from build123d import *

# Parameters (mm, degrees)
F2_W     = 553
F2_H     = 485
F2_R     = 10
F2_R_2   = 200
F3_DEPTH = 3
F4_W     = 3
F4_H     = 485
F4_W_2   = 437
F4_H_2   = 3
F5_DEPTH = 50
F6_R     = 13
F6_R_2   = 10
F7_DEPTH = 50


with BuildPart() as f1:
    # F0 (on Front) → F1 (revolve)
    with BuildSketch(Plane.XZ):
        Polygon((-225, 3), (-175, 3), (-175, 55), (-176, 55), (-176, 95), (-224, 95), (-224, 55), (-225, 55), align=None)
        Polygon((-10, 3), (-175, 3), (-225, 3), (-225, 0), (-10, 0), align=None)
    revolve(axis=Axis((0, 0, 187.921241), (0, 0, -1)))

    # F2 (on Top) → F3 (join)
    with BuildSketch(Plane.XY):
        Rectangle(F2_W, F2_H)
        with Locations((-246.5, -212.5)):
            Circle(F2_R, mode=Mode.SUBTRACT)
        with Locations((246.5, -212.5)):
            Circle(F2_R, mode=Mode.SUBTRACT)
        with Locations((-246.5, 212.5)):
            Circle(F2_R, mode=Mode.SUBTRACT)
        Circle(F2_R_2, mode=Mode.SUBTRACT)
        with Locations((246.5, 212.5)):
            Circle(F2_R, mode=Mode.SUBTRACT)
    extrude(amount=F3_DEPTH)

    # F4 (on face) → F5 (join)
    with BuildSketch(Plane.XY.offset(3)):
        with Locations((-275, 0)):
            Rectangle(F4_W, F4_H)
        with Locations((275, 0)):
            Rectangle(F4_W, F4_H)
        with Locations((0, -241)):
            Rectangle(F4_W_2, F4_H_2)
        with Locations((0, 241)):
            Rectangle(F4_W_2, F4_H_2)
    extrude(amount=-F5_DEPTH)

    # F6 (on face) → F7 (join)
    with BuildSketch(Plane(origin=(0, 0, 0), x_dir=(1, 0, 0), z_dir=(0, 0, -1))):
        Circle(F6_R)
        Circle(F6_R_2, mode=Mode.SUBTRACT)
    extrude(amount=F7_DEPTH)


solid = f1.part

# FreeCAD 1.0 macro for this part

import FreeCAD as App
import Part
import Sketcher
from FreeCAD import Vector
Q = App.Units.Quantity

doc = App.newDocument("Part")
body = doc.addObject("PartDesign::Body", "Body")

# Sketch on XZ plane
sketch1 = body.newObject("Sketcher::SketchObject", "Sketch")
sketch1.AttachmentSupport = (doc.getObject("XZ_Plane"), [""])
sketch1.MapMode = "FlatFace"
sketch1.addGeometry([
    Part.LineSegment(Vector(-175, 3, 0), Vector(-175, 55, 0)),  # 0
    Part.LineSegment(Vector(-175, 55, 0), Vector(-176, 55, 0)),  # 1
    Part.LineSegment(Vector(-176, 55, 0), Vector(-176, 95, 0)),  # 2
    Part.LineSegment(Vector(-176, 95, 0), Vector(-224, 95, 0)),  # 3
    Part.LineSegment(Vector(-224, 95, 0), Vector(-224, 55, 0)),  # 4
    Part.LineSegment(Vector(-224, 55, 0), Vector(-225, 55, 0)),  # 5
    Part.LineSegment(Vector(-225, 55, 0), Vector(-225, 0, 0)),  # 6
    Part.LineSegment(Vector(-225, 0, 0), Vector(-10, 0, 0)),  # 7
    Part.LineSegment(Vector(-10, 0, 0), Vector(-10, 3, 0)),  # 8
    Part.LineSegment(Vector(-10, 3, 0), Vector(-175, 3, 0)),  # 9
], False)
sketch1.addConstraint([
    Sketcher.Constraint("Coincident", 0, 2, 1, 1),
    Sketcher.Constraint("Coincident", 1, 2, 2, 1),
    Sketcher.Constraint("Coincident", 2, 2, 3, 1),
    Sketcher.Constraint("Coincident", 3, 2, 4, 1),
    Sketcher.Constraint("Coincident", 4, 2, 5, 1),
    Sketcher.Constraint("Coincident", 5, 2, 6, 1),
    Sketcher.Constraint("Coincident", 6, 2, 7, 1),
    Sketcher.Constraint("Coincident", 7, 2, 8, 1),
    Sketcher.Constraint("Coincident", 8, 2, 9, 1),
    Sketcher.Constraint("Coincident", 9, 2, 0, 1),
    Sketcher.Constraint("Vertical", 0),
    Sketcher.Constraint("Horizontal", 1),
    Sketcher.Constraint("Vertical", 2),
    Sketcher.Constraint("Horizontal", 3),
    Sketcher.Constraint("Vertical", 4),
    Sketcher.Constraint("Horizontal", 5),
    Sketcher.Constraint("Vertical", 6),
    Sketcher.Constraint("Horizontal", 7),
    Sketcher.Constraint("Vertical", 8),
    Sketcher.Constraint("Horizontal", 9),
    Sketcher.Constraint("PointOnObject", 6, 2, -1),
    Sketcher.Constraint("Horizontal", 1, 2, 4, 2),
    Sketcher.Constraint("Equal", 1, 5),
    Sketcher.Constraint("DistanceX", 1, 2, 1, 1, Q("1 mm")),
    Sketcher.Constraint("DistanceX", 3, 2, 3, 1, Q("48 mm")),
    Sketcher.Constraint("DistanceX", 7, 1, 7, 2, Q("215 mm")),
    Sketcher.Constraint("DistanceY", 0, 1, 0, 2, Q("52 mm")),
    Sketcher.Constraint("DistanceY", 2, 1, 2, 2, Q("40 mm")),
    Sketcher.Constraint("DistanceY", 6, 2, 6, 1, Q("55 mm")),
    Sketcher.Constraint("DistanceX", 0, 2, -1, 1, Q("175 mm")),
])
revolution = body.newObject("PartDesign::Revolution", "Revolution")
revolution.Profile = sketch1
revolution.ReferenceAxis = (sketch1, ["V_Axis"])
revolution.Angle = 360

# Sketch on XY plane
sketch2 = body.newObject("Sketcher::SketchObject", "Sketch001")
sketch2.AttachmentSupport = (doc.getObject("XY_Plane"), [""])
sketch2.MapMode = "FlatFace"
sketch2.addGeometry([
    Part.LineSegment(Vector(-276, 242, 0), Vector(-276, -242, 0)),  # 0
    Part.LineSegment(Vector(-276, -242, 0), Vector(276, -242, 0)),  # 1
    Part.LineSegment(Vector(276, -242, 0), Vector(276, 242, 0)),  # 2
    Part.LineSegment(Vector(276, 242, 0), Vector(-276, 242, 0)),  # 3
    Part.Circle(Vector(-246, -212, 0), Vector(0, 0, 1), 10),  # 4
    Part.Circle(Vector(246, -212, 0), Vector(0, 0, 1), 10),  # 5
    Part.Circle(Vector(-246, 212, 0), Vector(0, 0, 1), 10),  # 6
    Part.Circle(Vector(0, 0, 0), Vector(0, 0, 1), 200),  # 7
    Part.Circle(Vector(246, 212, 0), Vector(0, 0, 1), 10),  # 8
], False)
sketch2.addConstraint([
    Sketcher.Constraint("Coincident", 0, 2, 1, 1),
    Sketcher.Constraint("Coincident", 1, 2, 2, 1),
    Sketcher.Constraint("Coincident", 2, 2, 3, 1),
    Sketcher.Constraint("Coincident", 3, 2, 0, 1),
    Sketcher.Constraint("Vertical", 0),
    Sketcher.Constraint("Horizontal", 1),
    Sketcher.Constraint("Vertical", 2),
    Sketcher.Constraint("Horizontal", 3),
    Sketcher.Constraint("Coincident", 7, 3, -1, 1),
    Sketcher.Constraint("Equal", 4, 5),
    Sketcher.Constraint("Equal", 5, 6),
    Sketcher.Constraint("Equal", 6, 8),
    Sketcher.Constraint("Symmetric", 5, 3, 6, 3, -1, 1),
    Sketcher.Constraint("Symmetric", 4, 3, 8, 3, -1, 1),
    Sketcher.Constraint("Symmetric", 0, 2, 2, 2, -1, 1),
    Sketcher.Constraint("Symmetric", 4, 3, 5, 3, -2),
    Sketcher.Constraint("Diameter", 4, Q("20 mm")),
    Sketcher.Constraint("Diameter", 7, Q("400 mm")),
    Sketcher.Constraint("DistanceX", 1, 1, 1, 2, Q("553 mm")),
    Sketcher.Constraint("DistanceY", 0, 2, 0, 1, Q("485 mm")),
    Sketcher.Constraint("DistanceX", 4, 3, 5, 3, Q("493 mm")),
    Sketcher.Constraint("DistanceY", 4, 3, 6, 3, Q("425 mm")),
])
pad1 = body.newObject("PartDesign::Pad", "Pad")
pad1.Profile = sketch2
pad1.Length = 3

# Sketch on XY plane
sketch3 = body.newObject("Sketcher::SketchObject", "Sketch002")
sketch3.AttachmentSupport = (doc.getObject("XY_Plane"), [""])
sketch3.MapMode = "FlatFace"
sketch3.AttachmentOffset = App.Placement(Vector(0, 0, 3), App.Rotation())
sketch3.addGeometry([
    Part.LineSegment(Vector(-276.5, 242.5, 0), Vector(-276.5, -242.5, 0)),  # 0
    Part.LineSegment(Vector(-276.5, -242.5, 0), Vector(-273.5, -242.5, 0)),  # 1
    Part.LineSegment(Vector(-273.5, -242.5, 0), Vector(-273.5, 242.5, 0)),  # 2
    Part.LineSegment(Vector(-273.5, 242.5, 0), Vector(-276.5, 242.5, 0)),  # 3
    Part.LineSegment(Vector(273.5, 242.5, 0), Vector(273.5, -242.5, 0)),  # 4
    Part.LineSegment(Vector(273.5, -242.5, 0), Vector(276.5, -242.5, 0)),  # 5
    Part.LineSegment(Vector(276.5, -242.5, 0), Vector(276.5, 242.5, 0)),  # 6
    Part.LineSegment(Vector(276.5, 242.5, 0), Vector(273.5, 242.5, 0)),  # 7
    Part.LineSegment(Vector(-218.5, -239.5, 0), Vector(-218.5, -242.5, 0)),  # 8
    Part.LineSegment(Vector(-218.5, -242.5, 0), Vector(218.5, -242.5, 0)),  # 9
    Part.LineSegment(Vector(218.5, -242.5, 0), Vector(218.5, -239.5, 0)),  # 10
    Part.LineSegment(Vector(218.5, -239.5, 0), Vector(-218.5, -239.5, 0)),  # 11
    Part.LineSegment(Vector(-218.5, 242.5, 0), Vector(-218.5, 239.5, 0)),  # 12
    Part.LineSegment(Vector(-218.5, 239.5, 0), Vector(218.5, 239.5, 0)),  # 13
    Part.LineSegment(Vector(218.5, 239.5, 0), Vector(218.5, 242.5, 0)),  # 14
    Part.LineSegment(Vector(218.5, 242.5, 0), Vector(-218.5, 242.5, 0)),  # 15
], False)
sketch3.addConstraint([
    Sketcher.Constraint("Coincident", 0, 2, 1, 1),
    Sketcher.Constraint("Coincident", 1, 2, 2, 1),
    Sketcher.Constraint("Coincident", 2, 2, 3, 1),
    Sketcher.Constraint("Coincident", 3, 2, 0, 1),
    Sketcher.Constraint("Coincident", 4, 2, 5, 1),
    Sketcher.Constraint("Coincident", 5, 2, 6, 1),
    Sketcher.Constraint("Coincident", 6, 2, 7, 1),
    Sketcher.Constraint("Coincident", 7, 2, 4, 1),
    Sketcher.Constraint("Coincident", 8, 2, 9, 1),
    Sketcher.Constraint("Coincident", 9, 2, 10, 1),
    Sketcher.Constraint("Coincident", 10, 2, 11, 1),
    Sketcher.Constraint("Coincident", 11, 2, 8, 1),
    Sketcher.Constraint("Coincident", 12, 2, 13, 1),
    Sketcher.Constraint("Coincident", 13, 2, 14, 1),
    Sketcher.Constraint("Coincident", 14, 2, 15, 1),
    Sketcher.Constraint("Coincident", 15, 2, 12, 1),
    Sketcher.Constraint("Vertical", 0),
    Sketcher.Constraint("Horizontal", 1),
    Sketcher.Constraint("Vertical", 2),
    Sketcher.Constraint("Horizontal", 3),
    Sketcher.Constraint("Vertical", 4),
    Sketcher.Constraint("Horizontal", 5),
    Sketcher.Constraint("Vertical", 6),
    Sketcher.Constraint("Horizontal", 7),
    Sketcher.Constraint("Vertical", 8),
    Sketcher.Constraint("Horizontal", 9),
    Sketcher.Constraint("Vertical", 10),
    Sketcher.Constraint("Horizontal", 11),
    Sketcher.Constraint("Vertical", 12),
    Sketcher.Constraint("Horizontal", 13),
    Sketcher.Constraint("Vertical", 14),
    Sketcher.Constraint("Horizontal", 15),
    Sketcher.Constraint("Symmetric", 2, 2, 4, 2, -1, 1),
    Sketcher.Constraint("Symmetric", 0, 2, 6, 2, -1, 1),
    Sketcher.Constraint("Symmetric", 10, 2, 12, 2, -1, 1),
    Sketcher.Constraint("Symmetric", 8, 2, 14, 2, -1, 1),
    Sketcher.Constraint("Horizontal", 1, 2, 4, 2),
    Sketcher.Constraint("Horizontal", 5, 2, 8, 2),
    Sketcher.Constraint("Vertical", 11, 2, 12, 2),
    Sketcher.Constraint("Equal", 7, 8),
    Sketcher.Constraint("DistanceX", 1, 1, 1, 2, Q("3 mm")),
    Sketcher.Constraint("DistanceX", 9, 1, 9, 2, Q("437 mm")),
    Sketcher.Constraint("DistanceY", 0, 2, 0, 1, Q("485 mm")),
    Sketcher.Constraint("DistanceX", 1, 2, 4, 2, Q("547 mm")),
])
pad2 = body.newObject("PartDesign::Pad", "Pad001")
pad2.Profile = sketch3
pad2.Length = 50
pad2.Reversed = True

# Sketch on XY plane
sketch4 = body.newObject("Sketcher::SketchObject", "Sketch003")
sketch4.AttachmentSupport = (doc.getObject("XY_Plane"), [""])
sketch4.MapMode = "FlatFace"
sketch4.addGeometry([
    Part.Circle(Vector(0, 0, 0), Vector(0, 0, 1), 13),
    Part.Circle(Vector(0, 0, 0), Vector(0, 0, 1), 10),
], False)
sketch4.addConstraint([
    Sketcher.Constraint("Coincident", 0, 3, -1, 1),
    Sketcher.Constraint("Coincident", 1, 3, -1, 1),
    Sketcher.Constraint("Diameter", 0, Q("26 mm")),
    Sketcher.Constraint("Diameter", 1, Q("20 mm")),
])
pad3 = body.newObject("PartDesign::Pad", "Pad002")
pad3.Profile = sketch4
pad3.Length = 50
pad3.Reversed = True

doc.recompute()
